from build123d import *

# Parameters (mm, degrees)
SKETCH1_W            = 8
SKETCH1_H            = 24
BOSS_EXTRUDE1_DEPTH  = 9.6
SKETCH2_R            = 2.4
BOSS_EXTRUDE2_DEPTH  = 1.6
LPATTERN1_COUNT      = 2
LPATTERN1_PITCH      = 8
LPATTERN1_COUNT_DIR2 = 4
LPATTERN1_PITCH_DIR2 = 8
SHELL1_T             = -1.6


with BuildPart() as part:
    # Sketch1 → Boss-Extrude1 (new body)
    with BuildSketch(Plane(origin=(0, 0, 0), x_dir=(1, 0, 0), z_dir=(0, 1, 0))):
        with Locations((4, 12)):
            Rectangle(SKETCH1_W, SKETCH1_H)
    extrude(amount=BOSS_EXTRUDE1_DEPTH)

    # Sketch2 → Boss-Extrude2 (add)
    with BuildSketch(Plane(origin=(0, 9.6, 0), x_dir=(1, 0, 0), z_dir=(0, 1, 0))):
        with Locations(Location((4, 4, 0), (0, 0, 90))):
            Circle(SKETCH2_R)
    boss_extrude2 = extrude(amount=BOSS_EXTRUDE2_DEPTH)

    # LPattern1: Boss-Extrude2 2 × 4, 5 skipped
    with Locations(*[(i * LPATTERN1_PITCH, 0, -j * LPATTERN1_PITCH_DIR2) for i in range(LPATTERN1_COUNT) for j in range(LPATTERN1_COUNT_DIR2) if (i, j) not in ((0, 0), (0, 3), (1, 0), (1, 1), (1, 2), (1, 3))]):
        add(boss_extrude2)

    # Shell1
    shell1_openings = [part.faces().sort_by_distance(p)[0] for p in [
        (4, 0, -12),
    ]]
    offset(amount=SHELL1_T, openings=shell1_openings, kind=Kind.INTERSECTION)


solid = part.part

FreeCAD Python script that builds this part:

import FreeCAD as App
import Part
import Sketcher

V = App.Vector
Q = App.Units.Quantity


def faces_at(feature, points):
    """Names of the faces that lie closest to the given points."""
    faces = feature.Shape.Faces
    near = lambda p: min(range(len(faces)), key=lambda i: faces[i].distToShape(Part.Vertex(*p))[0])
    return sorted({f"Face{near(p) + 1}" for p in points})


def add_polygon(sketch, points):
    """Adds a closed chain of lines whose ends are joined by coincident constraints."""
    first, n = sketch.GeometryCount, len(points)
    for a, b in zip(points, points[1:] + points[:1]):
        sketch.addGeometry(Part.LineSegment(App.Vector(*a, 0), App.Vector(*b, 0)), False)
    for i in range(n):
        sketch.addConstraint(Sketcher.Constraint("Coincident", first + i, 2, first + (i + 1) % n, 1))

doc = App.newDocument("Part")
body = doc.addObject("PartDesign::Body", "Body")

sketch1 = body.newObject("Sketcher::SketchObject", "Sketch")
sketch1.AttachmentSupport = (doc.getObject("XZ_Plane"), [""])
sketch1.MapMode = "FlatFace"
add_polygon(sketch1, [(0, -24), (0, 0), (8, 0), (8, -24)])
sketch1.addConstraint(Sketcher.Constraint("Vertical", 0))
sketch1.addConstraint(Sketcher.Constraint("Horizontal", 1))
sketch1.addConstraint(Sketcher.Constraint("Vertical", 2))
sketch1.addConstraint(Sketcher.Constraint("Horizontal", 3))
sketch1.addConstraint(Sketcher.Constraint("Coincident", 0, 2, -1, 1))
sketch1.addConstraint(Sketcher.Constraint("DistanceX", 1, 1, 1, 2, Q("8 mm")))
sketch1.addConstraint(Sketcher.Constraint("DistanceY", 0, 1, 0, 2, Q("24 mm")))
pad1 = body.newObject("PartDesign::Pad", "Pad")
pad1.Profile = sketch1
pad1.Length = 9.6
pad1.Reversed = True

sketch2 = body.newObject("Sketcher::SketchObject", "Sketch001")
sketch2.AttachmentSupport = (doc.getObject("XZ_Plane"), [""])
sketch2.MapMode = "FlatFace"
sketch2.AttachmentOffset = App.Placement(V(0, 0, -9.6), App.Rotation())
sketch2.addGeometry(Part.Circle(V(4, -4, 0), V(0, 0, 1), 2.4), False)
sketch2.addConstraint(Sketcher.Constraint("Diameter", 0, Q("4.8 mm")))
sketch2.addConstraint(Sketcher.Constraint("DistanceX", -1, 1, 0, 3, Q("4 mm")))
sketch2.addConstraint(Sketcher.Constraint("DistanceY", 0, 3, -1, 1, Q("4 mm")))
pad2 = body.newObject("PartDesign::Pad", "Pad001")
pad2.Profile = sketch2
pad2.Length = 1.6
pad2.Reversed = True
doc.recompute()

linearpattern = body.newObject("PartDesign::LinearPattern", "LinearPattern")
linearpattern.Originals = [pad2]
linearpattern.Direction = (doc.getObject("Z_Axis"), [""])
linearpattern.Mode = "offset"
linearpattern.Offset = 8
linearpattern.Occurrences = 3
linearpattern.Reversed = True
body.Tip = linearpattern
doc.recompute()

thickness = body.newObject("PartDesign::Thickness", "Thickness")
thickness.Base = (linearpattern, faces_at(linearpattern, [(4, 0, -12)]))
thickness.Value = 1.6
thickness.Reversed = True
thickness.Join = "Intersection"

doc.recompute()
